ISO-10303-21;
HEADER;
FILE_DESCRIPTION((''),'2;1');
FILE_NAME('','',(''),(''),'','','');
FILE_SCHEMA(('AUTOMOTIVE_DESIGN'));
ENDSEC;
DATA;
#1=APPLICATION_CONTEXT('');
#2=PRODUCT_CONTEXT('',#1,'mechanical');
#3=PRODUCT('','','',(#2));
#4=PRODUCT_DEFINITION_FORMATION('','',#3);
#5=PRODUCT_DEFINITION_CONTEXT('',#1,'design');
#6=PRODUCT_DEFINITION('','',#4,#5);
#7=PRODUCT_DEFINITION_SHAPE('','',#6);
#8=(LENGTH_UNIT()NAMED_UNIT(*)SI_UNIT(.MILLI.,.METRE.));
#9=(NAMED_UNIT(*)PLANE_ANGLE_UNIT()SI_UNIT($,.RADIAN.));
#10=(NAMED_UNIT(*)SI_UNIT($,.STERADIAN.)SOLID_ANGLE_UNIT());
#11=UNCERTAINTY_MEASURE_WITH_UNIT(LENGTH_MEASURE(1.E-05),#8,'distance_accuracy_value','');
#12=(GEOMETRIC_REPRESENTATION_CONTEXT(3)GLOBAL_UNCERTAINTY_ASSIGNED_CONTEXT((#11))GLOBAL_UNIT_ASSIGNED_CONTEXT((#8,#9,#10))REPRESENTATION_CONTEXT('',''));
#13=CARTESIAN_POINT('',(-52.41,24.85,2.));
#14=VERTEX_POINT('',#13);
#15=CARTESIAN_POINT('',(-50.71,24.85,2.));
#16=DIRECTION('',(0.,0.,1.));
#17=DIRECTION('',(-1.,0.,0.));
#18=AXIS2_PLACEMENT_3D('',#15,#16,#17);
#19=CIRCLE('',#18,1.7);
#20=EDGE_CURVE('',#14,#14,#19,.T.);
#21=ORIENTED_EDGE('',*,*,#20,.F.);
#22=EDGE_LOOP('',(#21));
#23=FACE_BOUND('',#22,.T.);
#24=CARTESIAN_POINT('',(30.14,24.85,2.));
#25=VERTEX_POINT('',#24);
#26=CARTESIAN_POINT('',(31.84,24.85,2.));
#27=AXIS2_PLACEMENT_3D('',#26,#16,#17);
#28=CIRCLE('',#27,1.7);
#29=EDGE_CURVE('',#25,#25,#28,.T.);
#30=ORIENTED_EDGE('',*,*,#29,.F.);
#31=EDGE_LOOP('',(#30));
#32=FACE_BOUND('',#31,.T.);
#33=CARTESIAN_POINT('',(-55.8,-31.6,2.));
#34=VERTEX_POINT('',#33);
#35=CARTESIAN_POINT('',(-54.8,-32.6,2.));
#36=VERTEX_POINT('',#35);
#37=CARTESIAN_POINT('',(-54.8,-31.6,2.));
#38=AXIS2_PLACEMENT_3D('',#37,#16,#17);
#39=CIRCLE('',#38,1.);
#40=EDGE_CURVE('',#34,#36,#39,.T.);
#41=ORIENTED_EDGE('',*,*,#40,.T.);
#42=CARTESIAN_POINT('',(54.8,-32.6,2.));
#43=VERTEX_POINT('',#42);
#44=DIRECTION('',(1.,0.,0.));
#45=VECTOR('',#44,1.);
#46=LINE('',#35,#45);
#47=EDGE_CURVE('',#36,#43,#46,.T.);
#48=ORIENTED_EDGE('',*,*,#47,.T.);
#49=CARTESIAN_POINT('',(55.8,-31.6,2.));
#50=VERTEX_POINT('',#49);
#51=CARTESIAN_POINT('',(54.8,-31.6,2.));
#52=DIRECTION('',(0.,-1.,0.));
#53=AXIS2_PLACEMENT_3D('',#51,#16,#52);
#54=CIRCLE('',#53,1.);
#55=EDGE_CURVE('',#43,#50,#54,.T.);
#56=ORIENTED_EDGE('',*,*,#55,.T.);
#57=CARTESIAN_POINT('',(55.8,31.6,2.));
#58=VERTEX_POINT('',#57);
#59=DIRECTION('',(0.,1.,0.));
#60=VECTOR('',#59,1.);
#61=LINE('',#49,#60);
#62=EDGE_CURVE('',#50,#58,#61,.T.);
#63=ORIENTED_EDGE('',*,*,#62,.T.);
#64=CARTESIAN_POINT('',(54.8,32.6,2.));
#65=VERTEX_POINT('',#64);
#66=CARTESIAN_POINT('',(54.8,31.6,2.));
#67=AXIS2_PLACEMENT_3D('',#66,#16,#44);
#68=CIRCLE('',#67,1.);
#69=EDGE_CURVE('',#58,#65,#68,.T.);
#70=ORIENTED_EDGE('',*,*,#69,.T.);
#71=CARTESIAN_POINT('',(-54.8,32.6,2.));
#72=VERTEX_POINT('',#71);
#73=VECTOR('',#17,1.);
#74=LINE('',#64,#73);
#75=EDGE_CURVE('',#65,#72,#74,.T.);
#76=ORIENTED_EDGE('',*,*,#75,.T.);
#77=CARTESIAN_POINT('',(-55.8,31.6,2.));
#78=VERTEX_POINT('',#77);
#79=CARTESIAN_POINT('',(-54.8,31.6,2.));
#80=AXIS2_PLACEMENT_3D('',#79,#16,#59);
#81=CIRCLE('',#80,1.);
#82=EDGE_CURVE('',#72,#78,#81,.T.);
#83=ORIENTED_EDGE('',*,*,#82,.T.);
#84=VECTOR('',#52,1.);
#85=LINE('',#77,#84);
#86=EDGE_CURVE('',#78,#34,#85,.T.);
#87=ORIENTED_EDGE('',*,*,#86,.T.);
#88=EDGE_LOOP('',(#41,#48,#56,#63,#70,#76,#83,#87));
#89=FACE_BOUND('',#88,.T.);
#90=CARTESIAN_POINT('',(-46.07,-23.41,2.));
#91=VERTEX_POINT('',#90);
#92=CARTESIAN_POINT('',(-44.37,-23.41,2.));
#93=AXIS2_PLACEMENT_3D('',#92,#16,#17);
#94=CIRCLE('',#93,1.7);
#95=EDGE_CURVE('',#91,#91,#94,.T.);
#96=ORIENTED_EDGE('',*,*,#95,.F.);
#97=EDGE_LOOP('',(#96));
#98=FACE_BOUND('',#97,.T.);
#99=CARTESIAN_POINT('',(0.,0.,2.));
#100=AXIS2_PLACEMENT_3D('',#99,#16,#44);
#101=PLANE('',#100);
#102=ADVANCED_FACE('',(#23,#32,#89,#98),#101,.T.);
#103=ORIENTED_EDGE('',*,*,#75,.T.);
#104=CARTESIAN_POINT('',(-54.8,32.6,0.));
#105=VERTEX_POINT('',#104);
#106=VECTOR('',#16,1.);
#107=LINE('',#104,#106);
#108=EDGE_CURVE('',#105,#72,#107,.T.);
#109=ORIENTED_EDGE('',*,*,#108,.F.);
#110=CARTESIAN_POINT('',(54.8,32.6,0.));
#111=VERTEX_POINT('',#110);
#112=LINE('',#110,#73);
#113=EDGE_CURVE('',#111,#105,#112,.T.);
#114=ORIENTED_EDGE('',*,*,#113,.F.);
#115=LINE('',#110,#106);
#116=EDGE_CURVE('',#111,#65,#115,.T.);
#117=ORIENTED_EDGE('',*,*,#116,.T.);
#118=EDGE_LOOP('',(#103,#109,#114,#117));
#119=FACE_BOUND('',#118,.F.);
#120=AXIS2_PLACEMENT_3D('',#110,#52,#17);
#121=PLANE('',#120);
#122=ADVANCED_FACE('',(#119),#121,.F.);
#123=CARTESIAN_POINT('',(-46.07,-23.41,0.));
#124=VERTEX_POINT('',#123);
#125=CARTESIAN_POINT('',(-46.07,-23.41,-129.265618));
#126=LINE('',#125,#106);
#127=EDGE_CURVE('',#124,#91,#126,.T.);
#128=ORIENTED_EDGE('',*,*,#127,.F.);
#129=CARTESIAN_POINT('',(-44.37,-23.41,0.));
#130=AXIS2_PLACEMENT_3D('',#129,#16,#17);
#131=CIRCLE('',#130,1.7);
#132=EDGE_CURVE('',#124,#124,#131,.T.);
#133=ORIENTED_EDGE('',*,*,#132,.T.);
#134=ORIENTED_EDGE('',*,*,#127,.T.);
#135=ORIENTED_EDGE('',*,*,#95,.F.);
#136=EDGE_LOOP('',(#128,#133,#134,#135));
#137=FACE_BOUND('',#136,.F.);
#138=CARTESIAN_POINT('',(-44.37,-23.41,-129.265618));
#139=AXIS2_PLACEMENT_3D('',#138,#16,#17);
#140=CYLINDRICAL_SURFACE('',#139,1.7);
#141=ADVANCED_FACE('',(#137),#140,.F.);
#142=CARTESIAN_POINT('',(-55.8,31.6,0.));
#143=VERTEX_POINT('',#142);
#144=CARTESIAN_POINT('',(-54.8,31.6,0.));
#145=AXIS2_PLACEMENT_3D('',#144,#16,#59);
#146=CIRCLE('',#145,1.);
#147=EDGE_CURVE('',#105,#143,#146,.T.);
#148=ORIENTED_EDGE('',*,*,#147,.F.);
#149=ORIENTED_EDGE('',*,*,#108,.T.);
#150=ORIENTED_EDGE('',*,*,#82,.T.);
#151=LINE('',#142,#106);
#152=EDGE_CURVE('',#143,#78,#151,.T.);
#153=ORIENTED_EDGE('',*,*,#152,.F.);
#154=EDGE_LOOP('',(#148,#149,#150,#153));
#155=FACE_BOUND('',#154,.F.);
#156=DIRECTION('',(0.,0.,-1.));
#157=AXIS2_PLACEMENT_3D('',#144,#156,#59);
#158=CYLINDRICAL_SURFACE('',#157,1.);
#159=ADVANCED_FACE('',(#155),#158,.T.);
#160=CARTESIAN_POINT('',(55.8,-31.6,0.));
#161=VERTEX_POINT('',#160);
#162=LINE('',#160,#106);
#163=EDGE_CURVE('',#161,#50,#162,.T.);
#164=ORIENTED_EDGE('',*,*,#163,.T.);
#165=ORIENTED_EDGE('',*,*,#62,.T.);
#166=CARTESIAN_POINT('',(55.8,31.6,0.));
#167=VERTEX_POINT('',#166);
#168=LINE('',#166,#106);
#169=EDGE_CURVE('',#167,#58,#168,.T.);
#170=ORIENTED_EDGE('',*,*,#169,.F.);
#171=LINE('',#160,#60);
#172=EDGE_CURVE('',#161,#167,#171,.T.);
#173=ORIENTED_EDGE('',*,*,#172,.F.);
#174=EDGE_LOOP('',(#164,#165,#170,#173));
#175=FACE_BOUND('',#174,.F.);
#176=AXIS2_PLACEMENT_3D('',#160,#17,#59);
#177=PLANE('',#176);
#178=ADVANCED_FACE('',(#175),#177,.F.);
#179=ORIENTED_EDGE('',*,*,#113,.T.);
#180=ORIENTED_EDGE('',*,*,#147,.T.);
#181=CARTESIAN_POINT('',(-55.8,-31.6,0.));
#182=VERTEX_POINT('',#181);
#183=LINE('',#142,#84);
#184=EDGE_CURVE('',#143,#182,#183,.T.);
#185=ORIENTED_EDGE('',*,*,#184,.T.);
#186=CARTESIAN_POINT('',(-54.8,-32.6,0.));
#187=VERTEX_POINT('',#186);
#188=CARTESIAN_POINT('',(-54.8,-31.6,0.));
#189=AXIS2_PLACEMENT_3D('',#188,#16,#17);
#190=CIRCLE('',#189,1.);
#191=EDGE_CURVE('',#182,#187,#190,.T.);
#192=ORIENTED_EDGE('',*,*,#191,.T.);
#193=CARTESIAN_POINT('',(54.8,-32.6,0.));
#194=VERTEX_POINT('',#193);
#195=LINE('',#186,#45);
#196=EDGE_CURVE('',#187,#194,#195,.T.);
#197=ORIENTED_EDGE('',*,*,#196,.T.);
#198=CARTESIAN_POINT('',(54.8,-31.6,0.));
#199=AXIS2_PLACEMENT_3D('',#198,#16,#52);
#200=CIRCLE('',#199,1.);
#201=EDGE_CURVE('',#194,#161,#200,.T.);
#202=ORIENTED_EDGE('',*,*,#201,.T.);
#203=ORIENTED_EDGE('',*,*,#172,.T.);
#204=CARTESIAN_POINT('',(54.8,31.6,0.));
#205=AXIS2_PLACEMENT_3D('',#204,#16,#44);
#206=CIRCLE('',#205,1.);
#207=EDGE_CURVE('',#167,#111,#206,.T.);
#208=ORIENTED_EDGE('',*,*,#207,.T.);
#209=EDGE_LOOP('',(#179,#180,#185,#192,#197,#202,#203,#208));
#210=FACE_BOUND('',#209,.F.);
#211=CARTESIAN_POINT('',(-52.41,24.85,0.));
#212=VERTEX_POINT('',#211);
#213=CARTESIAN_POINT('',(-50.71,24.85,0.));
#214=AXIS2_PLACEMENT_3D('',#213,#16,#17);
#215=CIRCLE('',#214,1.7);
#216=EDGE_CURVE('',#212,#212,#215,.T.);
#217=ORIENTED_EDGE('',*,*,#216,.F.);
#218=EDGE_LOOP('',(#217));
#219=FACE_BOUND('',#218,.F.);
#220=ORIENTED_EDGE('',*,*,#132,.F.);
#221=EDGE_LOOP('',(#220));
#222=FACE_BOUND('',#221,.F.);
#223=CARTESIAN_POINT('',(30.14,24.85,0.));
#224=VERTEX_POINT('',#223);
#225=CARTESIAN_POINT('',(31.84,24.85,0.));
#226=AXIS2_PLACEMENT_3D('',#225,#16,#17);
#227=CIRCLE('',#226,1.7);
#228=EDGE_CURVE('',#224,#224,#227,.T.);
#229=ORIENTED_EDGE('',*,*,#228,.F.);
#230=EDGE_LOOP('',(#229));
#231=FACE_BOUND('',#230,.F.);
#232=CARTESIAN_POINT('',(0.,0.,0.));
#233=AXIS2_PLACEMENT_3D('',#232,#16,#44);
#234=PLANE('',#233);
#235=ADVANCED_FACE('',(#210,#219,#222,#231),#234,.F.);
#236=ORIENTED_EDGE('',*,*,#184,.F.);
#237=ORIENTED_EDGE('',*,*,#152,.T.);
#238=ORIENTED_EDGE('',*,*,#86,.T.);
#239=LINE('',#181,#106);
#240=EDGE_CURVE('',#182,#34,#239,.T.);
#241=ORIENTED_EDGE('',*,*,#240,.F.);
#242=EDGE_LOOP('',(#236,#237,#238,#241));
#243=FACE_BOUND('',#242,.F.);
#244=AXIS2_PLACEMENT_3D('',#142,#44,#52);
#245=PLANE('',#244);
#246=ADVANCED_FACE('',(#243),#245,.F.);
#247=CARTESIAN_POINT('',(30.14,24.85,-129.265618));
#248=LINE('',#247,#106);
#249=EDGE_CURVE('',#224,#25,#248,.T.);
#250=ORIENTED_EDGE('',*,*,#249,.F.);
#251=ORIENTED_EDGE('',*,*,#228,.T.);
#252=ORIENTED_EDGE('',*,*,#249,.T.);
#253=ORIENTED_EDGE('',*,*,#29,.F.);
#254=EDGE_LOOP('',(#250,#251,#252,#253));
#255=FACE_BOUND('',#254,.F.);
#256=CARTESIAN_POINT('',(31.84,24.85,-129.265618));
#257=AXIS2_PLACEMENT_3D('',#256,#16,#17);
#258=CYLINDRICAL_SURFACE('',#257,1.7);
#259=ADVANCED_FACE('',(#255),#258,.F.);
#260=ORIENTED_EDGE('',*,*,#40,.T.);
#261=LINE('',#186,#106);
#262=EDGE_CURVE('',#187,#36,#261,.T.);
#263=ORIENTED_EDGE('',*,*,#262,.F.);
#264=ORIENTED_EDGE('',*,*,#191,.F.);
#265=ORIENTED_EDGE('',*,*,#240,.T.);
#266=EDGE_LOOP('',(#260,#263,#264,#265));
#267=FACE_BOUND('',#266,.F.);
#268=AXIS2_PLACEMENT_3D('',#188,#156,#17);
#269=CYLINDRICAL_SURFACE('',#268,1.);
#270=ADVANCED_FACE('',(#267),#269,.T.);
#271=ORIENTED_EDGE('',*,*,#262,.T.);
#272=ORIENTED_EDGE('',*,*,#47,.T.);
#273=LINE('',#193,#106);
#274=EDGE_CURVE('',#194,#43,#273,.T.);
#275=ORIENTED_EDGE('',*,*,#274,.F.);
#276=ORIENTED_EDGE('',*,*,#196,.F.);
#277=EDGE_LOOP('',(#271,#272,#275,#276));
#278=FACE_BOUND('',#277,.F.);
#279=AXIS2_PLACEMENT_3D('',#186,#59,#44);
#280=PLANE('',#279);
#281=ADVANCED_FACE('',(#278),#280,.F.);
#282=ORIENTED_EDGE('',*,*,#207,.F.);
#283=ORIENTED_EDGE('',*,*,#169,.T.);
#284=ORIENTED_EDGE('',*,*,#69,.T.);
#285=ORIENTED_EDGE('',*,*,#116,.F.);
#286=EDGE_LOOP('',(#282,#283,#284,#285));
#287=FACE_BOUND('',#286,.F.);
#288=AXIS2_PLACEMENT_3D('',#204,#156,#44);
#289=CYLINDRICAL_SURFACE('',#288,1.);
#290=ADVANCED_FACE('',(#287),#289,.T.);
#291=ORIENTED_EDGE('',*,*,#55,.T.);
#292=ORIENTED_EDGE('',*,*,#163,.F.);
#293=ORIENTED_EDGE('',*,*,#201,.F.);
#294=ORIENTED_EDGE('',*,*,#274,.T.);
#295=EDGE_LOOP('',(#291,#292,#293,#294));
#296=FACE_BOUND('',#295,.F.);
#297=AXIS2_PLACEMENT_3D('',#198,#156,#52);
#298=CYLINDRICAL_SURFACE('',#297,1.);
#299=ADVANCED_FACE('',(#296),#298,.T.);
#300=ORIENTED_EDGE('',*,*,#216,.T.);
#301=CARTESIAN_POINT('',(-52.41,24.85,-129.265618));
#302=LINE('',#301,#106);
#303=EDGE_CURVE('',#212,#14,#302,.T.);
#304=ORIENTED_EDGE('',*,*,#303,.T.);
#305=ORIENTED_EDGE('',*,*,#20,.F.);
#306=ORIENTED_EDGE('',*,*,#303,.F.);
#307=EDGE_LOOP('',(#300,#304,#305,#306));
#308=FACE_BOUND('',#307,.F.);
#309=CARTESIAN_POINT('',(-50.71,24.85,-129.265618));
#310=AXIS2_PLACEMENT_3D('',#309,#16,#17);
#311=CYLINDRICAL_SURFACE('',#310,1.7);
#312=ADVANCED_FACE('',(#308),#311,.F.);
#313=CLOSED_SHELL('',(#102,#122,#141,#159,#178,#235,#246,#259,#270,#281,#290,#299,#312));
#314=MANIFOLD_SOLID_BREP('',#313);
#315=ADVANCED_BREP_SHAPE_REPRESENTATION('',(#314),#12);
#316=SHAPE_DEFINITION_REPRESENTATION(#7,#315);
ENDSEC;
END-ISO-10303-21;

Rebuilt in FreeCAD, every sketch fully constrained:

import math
import FreeCAD as App
import Part
import Sketcher

V = App.Vector
Q = App.Units.Quantity

doc = App.newDocument("Part")
body = doc.addObject("PartDesign::Body", "Body")

# Sketch on XY plane
sketch1 = body.newObject("Sketcher::SketchObject", "Sketch")
sketch1.AttachmentSupport = (doc.getObject("XY_Plane"), [""])
sketch1.MapMode = "FlatFace"
sketch1.addGeometry(Part.LineSegment(V(-54.8, -32.6, 0), V(54.8, -32.6, 0)), False)
sketch1.addGeometry(Part.ArcOfCircle(Part.Circle(V(54.8, -31.6, 0), V(0, 0, 1), 1), math.radians(-90), math.radians(0)), False)
sketch1.addGeometry(Part.LineSegment(V(55.8, -31.6, 0), V(55.8, 31.6, 0)), False)
sketch1.addGeometry(Part.ArcOfCircle(Part.Circle(V(54.8, 31.6, 0), V(0, 0, 1), 1), math.radians(0), math.radians(90)), False)
sketch1.addGeometry(Part.LineSegment(V(54.8, 32.6, 0), V(-54.8, 32.6, 0)), False)
sketch1.addGeometry(Part.ArcOfCircle(Part.Circle(V(-54.8, 31.6, 0), V(0, 0, 1), 1), math.radians(90), math.radians(180)), False)
sketch1.addGeometry(Part.LineSegment(V(-55.8, 31.6, 0), V(-55.8, -31.6, 0)), False)
sketch1.addGeometry(Part.ArcOfCircle(Part.Circle(V(-54.8, -31.6, 0), V(0, 0, 1), 1), math.radians(180), math.radians(270)), False)
sketch1.addConstraint(Sketcher.Constraint("Tangent", 0, 2, 1, 1))
sketch1.addConstraint(Sketcher.Constraint("Tangent", 1, 2, 2, 1))
sketch1.addConstraint(Sketcher.Constraint("Tangent", 2, 2, 3, 1))
sketch1.addConstraint(Sketcher.Constraint("Tangent", 3, 2, 4, 1))
sketch1.addConstraint(Sketcher.Constraint("Tangent", 4, 2, 5, 1))
sketch1.addConstraint(Sketcher.Constraint("Tangent", 5, 2, 6, 1))
sketch1.addConstraint(Sketcher.Constraint("Tangent", 6, 2, 7, 1))
sketch1.addConstraint(Sketcher.Constraint("Tangent", 7, 2, 0, 1))
sketch1.addConstraint(Sketcher.Constraint("Horizontal", 0))
sketch1.addConstraint(Sketcher.Constraint("Vertical", 2))
sketch1.addConstraint(Sketcher.Constraint("Horizontal", 4))
sketch1.addConstraint(Sketcher.Constraint("Vertical", 6))
sketch1.addConstraint(Sketcher.Constraint("Equal", 1, 3))
sketch1.addConstraint(Sketcher.Constraint("Equal", 3, 5))
sketch1.addConstraint(Sketcher.Constraint("Equal", 5, 7))
sketch1.addConstraint(Sketcher.Constraint("Symmetric", 1, 3, 5, 3, -1, 1))
sketch1.addConstraint(Sketcher.Constraint("Radius", 1, Q("1 mm")))
sketch1.addConstraint(Sketcher.Constraint("DistanceX", 0, 1, 0, 2, Q("109.6 mm")))
sketch1.addConstraint(Sketcher.Constraint("DistanceY", 2, 1, 2, 2, Q("63.2 mm")))
pad1 = body.newObject("PartDesign::Pad", "Pad")
pad1.Profile = sketch1
pad1.Length = 2

# Sketch on XY plane
sketch2 = body.newObject("Sketcher::SketchObject", "Sketch001")
sketch2.AttachmentSupport = (doc.getObject("XY_Plane"), [""])
sketch2.MapMode = "FlatFace"
sketch2.addGeometry(Part.Circle(V(-50.7, 24.9, 0), V(0, 0, 1), 1.7), False)
sketch2.addGeometry(Part.Circle(V(-44.4, -23.4, 0), V(0, 0, 1), 1.7), False)
sketch2.addGeometry(Part.Circle(V(31.8, 24.9, 0), V(0, 0, 1), 1.7), False)
sketch2.addConstraint(Sketcher.Constraint("Equal", 0, 1))
sketch2.addConstraint(Sketcher.Constraint("Equal", 1, 2))
sketch2.addConstraint(Sketcher.Constraint("Horizontal", 0, 3, 2, 3))
sketch2.addConstraint(Sketcher.Constraint("Diameter", 0, Q("3.4 mm")))
sketch2.addConstraint(Sketcher.Constraint("DistanceX", 0, 3, -1, 1, Q("50.71 mm")))
sketch2.addConstraint(Sketcher.Constraint("DistanceY", -1, 1, 0, 3, Q("24.85 mm")))
sketch2.addConstraint(Sketcher.Constraint("DistanceX", 1, 3, -1, 1, Q("44.37 mm")))
sketch2.addConstraint(Sketcher.Constraint("DistanceY", 1, 3, -1, 1, Q("23.41 mm")))
sketch2.addConstraint(Sketcher.Constraint("DistanceX", -1, 1, 2, 3, Q("31.84 mm")))
doc.recompute()
hole = body.newObject("PartDesign::Hole", "Hole")
hole.Profile = sketch2
hole.ThreadType = "None"
hole.Diameter = 3.4
hole.DepthType = "ThroughAll"
hole.Reversed = True

doc.recompute()
